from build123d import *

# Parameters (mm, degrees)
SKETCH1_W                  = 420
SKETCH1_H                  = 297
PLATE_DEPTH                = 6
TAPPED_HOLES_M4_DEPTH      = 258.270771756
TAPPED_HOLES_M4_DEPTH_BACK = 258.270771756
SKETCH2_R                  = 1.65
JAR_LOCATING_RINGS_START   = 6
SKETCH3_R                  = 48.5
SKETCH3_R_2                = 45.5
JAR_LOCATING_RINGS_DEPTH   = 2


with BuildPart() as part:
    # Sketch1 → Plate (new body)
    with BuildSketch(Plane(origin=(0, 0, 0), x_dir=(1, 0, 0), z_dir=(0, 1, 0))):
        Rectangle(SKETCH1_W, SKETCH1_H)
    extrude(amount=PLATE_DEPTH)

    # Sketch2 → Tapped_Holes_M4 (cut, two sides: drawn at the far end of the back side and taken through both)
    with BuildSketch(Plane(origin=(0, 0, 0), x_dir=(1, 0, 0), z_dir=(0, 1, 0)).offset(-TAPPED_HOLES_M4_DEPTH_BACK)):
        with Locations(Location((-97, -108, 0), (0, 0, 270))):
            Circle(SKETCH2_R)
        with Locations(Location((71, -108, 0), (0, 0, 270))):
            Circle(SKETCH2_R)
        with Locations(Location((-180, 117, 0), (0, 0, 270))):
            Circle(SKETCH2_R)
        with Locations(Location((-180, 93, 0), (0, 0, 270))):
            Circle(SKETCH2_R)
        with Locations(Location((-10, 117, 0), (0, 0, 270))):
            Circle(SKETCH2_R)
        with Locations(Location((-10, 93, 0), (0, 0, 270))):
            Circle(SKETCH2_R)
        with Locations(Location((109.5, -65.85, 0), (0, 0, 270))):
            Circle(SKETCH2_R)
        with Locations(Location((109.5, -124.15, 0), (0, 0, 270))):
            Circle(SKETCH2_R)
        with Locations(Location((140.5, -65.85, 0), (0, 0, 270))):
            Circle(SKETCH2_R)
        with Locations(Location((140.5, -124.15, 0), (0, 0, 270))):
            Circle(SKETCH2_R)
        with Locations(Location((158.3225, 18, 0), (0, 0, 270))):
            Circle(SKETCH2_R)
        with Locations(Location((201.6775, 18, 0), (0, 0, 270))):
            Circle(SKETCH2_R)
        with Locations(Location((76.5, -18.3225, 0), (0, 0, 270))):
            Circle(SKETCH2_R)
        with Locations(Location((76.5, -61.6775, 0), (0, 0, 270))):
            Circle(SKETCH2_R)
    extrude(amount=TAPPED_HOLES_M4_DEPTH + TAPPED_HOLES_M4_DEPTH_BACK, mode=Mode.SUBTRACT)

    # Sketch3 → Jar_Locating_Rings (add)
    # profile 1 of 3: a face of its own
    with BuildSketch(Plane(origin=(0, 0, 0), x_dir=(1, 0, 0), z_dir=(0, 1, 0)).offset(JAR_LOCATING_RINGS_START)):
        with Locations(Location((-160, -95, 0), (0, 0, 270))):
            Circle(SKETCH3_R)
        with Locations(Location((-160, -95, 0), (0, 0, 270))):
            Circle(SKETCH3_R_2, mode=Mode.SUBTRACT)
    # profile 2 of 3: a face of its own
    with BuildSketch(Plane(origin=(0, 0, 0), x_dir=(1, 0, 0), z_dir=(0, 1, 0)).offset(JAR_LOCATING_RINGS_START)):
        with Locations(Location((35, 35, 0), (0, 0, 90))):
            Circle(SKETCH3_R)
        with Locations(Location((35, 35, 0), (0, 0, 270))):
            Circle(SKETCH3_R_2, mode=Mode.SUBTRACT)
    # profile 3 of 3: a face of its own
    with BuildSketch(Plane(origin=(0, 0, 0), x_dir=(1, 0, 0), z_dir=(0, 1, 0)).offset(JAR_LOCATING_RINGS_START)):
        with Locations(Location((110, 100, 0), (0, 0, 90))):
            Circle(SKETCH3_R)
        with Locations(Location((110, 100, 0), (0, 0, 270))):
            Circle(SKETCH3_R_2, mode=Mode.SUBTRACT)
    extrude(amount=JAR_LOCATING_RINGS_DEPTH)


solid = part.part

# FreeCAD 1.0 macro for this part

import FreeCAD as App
import Part
import Sketcher
Q = App.Units.Quantity


def add_polygon(sketch, points):
    """Adds a closed chain of lines whose ends are joined by coincident constraints."""
    first, n = sketch.GeometryCount, len(points)
    for a, b in zip(points, points[1:] + points[:1]):
        sketch.addGeometry(Part.LineSegment(App.Vector(*a, 0), App.Vector(*b, 0)), False)
    for i in range(n):
        sketch.addConstraint(Sketcher.Constraint("Coincident", first + i, 2, first + (i + 1) % n, 1))

doc = App.newDocument("Part")
body = doc.addObject("PartDesign::Body", "Body")

# Sketch on XZ plane
sketch1 = body.newObject("Sketcher::SketchObject", "Sketch")
sketch1.AttachmentSupport = (doc.getObject("XZ_Plane"), [""])
sketch1.MapMode = "FlatFace"
add_polygon(sketch1, [(-210, -148), (-210, 148), (210, 148), (210, -148)])  # lines 0-3
sketch1.addConstraint([
    Sketcher.Constraint("Vertical", 0),
    Sketcher.Constraint("Horizontal", 1),
    Sketcher.Constraint("Vertical", 2),
    Sketcher.Constraint("Horizontal", 3),
    Sketcher.Constraint("Symmetric", 0, 2, 2, 2, -1, 1),
    Sketcher.Constraint("DistanceX", 1, 1, 1, 2, Q("420 mm")),
    Sketcher.Constraint("DistanceY", 0, 1, 0, 2, Q("297 mm")),
])
pad1 = body.newObject("PartDesign::Pad", "Pad")
pad1.Profile = sketch1
pad1.Length = 6
pad1.Reversed = True

# Sketch on XZ plane
sketch2 = body.newObject("Sketcher::SketchObject", "Sketch001")
sketch2.AttachmentSupport = (doc.getObject("XZ_Plane"), [""])
sketch2.MapMode = "FlatFace"
sketch2.addGeometry([
    Part.Circle(App.Vector(-97, 108, 0), App.Vector(0, 0, 1), 1.6),  # 0
    Part.Circle(App.Vector(71, 108, 0), App.Vector(0, 0, 1), 1.6),  # 1
    Part.Circle(App.Vector(-180, -117, 0), App.Vector(0, 0, 1), 1.6),  # 2
    Part.Circle(App.Vector(-180, -93, 0), App.Vector(0, 0, 1), 1.6),  # 3
    Part.Circle(App.Vector(-10, -117, 0), App.Vector(0, 0, 1), 1.6),  # 4
    Part.Circle(App.Vector(-10, -93, 0), App.Vector(0, 0, 1), 1.6),  # 5
    Part.Circle(App.Vector(109.5, 65.8, 0), App.Vector(0, 0, 1), 1.6),  # 6
    Part.Circle(App.Vector(109.5, 124.2, 0), App.Vector(0, 0, 1), 1.6),  # 7
    Part.Circle(App.Vector(140.5, 65.8, 0), App.Vector(0, 0, 1), 1.6),  # 8
    Part.Circle(App.Vector(140.5, 124.2, 0), App.Vector(0, 0, 1), 1.6),  # 9
    Part.Circle(App.Vector(158.3, -18, 0), App.Vector(0, 0, 1), 1.6),  # 10
    Part.Circle(App.Vector(201.7, -18, 0), App.Vector(0, 0, 1), 1.6),  # 11
    Part.Circle(App.Vector(76.5, 18.3, 0), App.Vector(0, 0, 1), 1.6),  # 12
    Part.Circle(App.Vector(76.5, 61.7, 0), App.Vector(0, 0, 1), 1.6),  # 13
], False)
sketch2.addConstraint([
    Sketcher.Constraint("Equal", 0, 1),
    Sketcher.Constraint("Equal", 1, 2),
    Sketcher.Constraint("Equal", 2, 3),
    Sketcher.Constraint("Equal", 3, 4),
    Sketcher.Constraint("Equal", 4, 5),
    Sketcher.Constraint("Equal", 5, 6),
    Sketcher.Constraint("Equal", 6, 7),
    Sketcher.Constraint("Equal", 7, 8),
    Sketcher.Constraint("Equal", 8, 9),
    Sketcher.Constraint("Equal", 9, 10),
    Sketcher.Constraint("Equal", 10, 11),
    Sketcher.Constraint("Equal", 11, 12),
    Sketcher.Constraint("Equal", 12, 13),
    Sketcher.Constraint("Horizontal", 0, 3, 1, 3),
    Sketcher.Constraint("Horizontal", 2, 3, 4, 3),
    Sketcher.Constraint("Horizontal", 3, 3, 5, 3),
    Sketcher.Constraint("Horizontal", 6, 3, 8, 3),
    Sketcher.Constraint("Horizontal", 7, 3, 9, 3),
    Sketcher.Constraint("Horizontal", 10, 3, 11, 3),
    Sketcher.Constraint("Vertical", 2, 3, 3, 3),
    Sketcher.Constraint("Vertical", 4, 3, 5, 3),
    Sketcher.Constraint("Vertical", 6, 3, 7, 3),
    Sketcher.Constraint("Vertical", 8, 3, 9, 3),
    Sketcher.Constraint("Vertical", 12, 3, 13, 3),
    Sketcher.Constraint("Diameter", 0, Q("3.3 mm")),
    Sketcher.Constraint("DistanceX", 0, 3, -1, 1, Q("97 mm")),
    Sketcher.Constraint("DistanceY", -1, 1, 0, 3, Q("108 mm")),
    Sketcher.Constraint("DistanceX", -1, 1, 1, 3, Q("71 mm")),
    Sketcher.Constraint("DistanceX", 2, 3, -1, 1, Q("180 mm")),
    Sketcher.Constraint("DistanceY", 2, 3, -1, 1, Q("117 mm")),
    Sketcher.Constraint("DistanceY", 3, 3, -1, 1, Q("93 mm")),
    Sketcher.Constraint("DistanceX", 4, 3, -1, 1, Q("10 mm")),
    Sketcher.Constraint("DistanceY", 10, 3, -1, 1, Q("18 mm")),
    Sketcher.Constraint("DistanceX", 6, 3, 8, 3, Q("31 mm")),
    Sketcher.Constraint("DistanceX", 12, 3, 6, 3, Q("33 mm")),
    Sketcher.Constraint("DistanceX", -1, 1, 6, 3, Q("109.5 mm")),
    Sketcher.Constraint("DistanceY", 6, 3, 7, 3, Q("58.3 mm")),
    Sketcher.Constraint("DistanceY", -1, 1, 6, 3, Q("65.85 mm")),
    Sketcher.Constraint("DistanceX", 10, 3, 11, 3, Q("43.355 mm")),
    Sketcher.Constraint("DistanceY", 12, 3, 13, 3, Q("43.355 mm")),
    Sketcher.Constraint("DistanceX", -1, 1, 10, 3, Q("158.3225 mm")),
    Sketcher.Constraint("DistanceY", -1, 1, 12, 3, Q("18.3225 mm")),
])
pocket1 = body.newObject("PartDesign::Pocket", "Pocket")
pocket1.Profile = sketch2
pocket1.Type = "ThroughAll"
pocket1.Midplane = True

# Sketch on XZ plane
sketch3 = body.newObject("Sketcher::SketchObject", "Sketch002")
sketch3.AttachmentSupport = (doc.getObject("XZ_Plane"), [""])
sketch3.MapMode = "FlatFace"
sketch3.AttachmentOffset = App.Placement(App.Vector(0, 0, -6), App.Rotation())
sketch3.addGeometry([
    Part.Circle(App.Vector(-160, 95, 0), App.Vector(0, 0, 1), 48),  # 0
    Part.Circle(App.Vector(-160, 95, 0), App.Vector(0, 0, 1), 46),  # 1
    Part.Circle(App.Vector(35, -35, 0), App.Vector(0, 0, 1), 48),  # 2
    Part.Circle(App.Vector(35, -35, 0), App.Vector(0, 0, 1), 46),  # 3
    Part.Circle(App.Vector(110, -100, 0), App.Vector(0, 0, 1), 48),  # 4
    Part.Circle(App.Vector(110, -100, 0), App.Vector(0, 0, 1), 46),  # 5
], False)
sketch3.addConstraint([
    Sketcher.Constraint("Coincident", 1, 3, 0, 3),
    Sketcher.Constraint("Coincident", 3, 3, 2, 3),
    Sketcher.Constraint("Coincident", 5, 3, 4, 3),
    Sketcher.Constraint("Equal", 0, 2),
    Sketcher.Constraint("Equal", 1, 3),
    Sketcher.Constraint("Equal", 2, 4),
    Sketcher.Constraint("Equal", 3, 5),
    Sketcher.Constraint("Diameter", 0, Q("97 mm")),
    Sketcher.Constraint("Diameter", 1, Q("91 mm")),
    Sketcher.Constraint("DistanceX", 0, 3, -1, 1, Q("160 mm")),
    Sketcher.Constraint("DistanceY", -1, 1, 0, 3, Q("95 mm")),
    Sketcher.Constraint("DistanceX", -1, 1, 2, 3, Q("35 mm")),
    Sketcher.Constraint("DistanceY", 2, 3, -1, 1, Q("35 mm")),
    Sketcher.Constraint("DistanceX", -1, 1, 4, 3, Q("110 mm")),
    Sketcher.Constraint("DistanceY", 4, 3, -1, 1, Q("100 mm")),
])
pad2 = body.newObject("PartDesign::Pad", "Pad001")
pad2.Profile = sketch3
pad2.Length = 2
pad2.Reversed = True

doc.recompute()
